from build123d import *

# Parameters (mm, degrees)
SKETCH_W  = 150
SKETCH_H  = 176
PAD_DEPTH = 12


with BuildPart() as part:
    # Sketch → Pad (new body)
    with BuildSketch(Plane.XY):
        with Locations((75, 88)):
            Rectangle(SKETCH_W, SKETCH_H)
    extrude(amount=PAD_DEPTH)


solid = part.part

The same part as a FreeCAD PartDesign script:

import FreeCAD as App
import Part
import Sketcher

V = App.Vector

doc = App.newDocument("Part")
params = doc.addObject("Spreadsheet::Sheet", "Params")
for row, (alias, value) in enumerate([
    ("sketch1_width", "150 mm"),
    ("sketch1_height", "176 mm"),
    ("pad1_length", "12 mm"),
], start=1):
    params.set(f"A{row}", alias)
    params.set(f"B{row}", "=" + value)
    params.setAlias(f"B{row}", alias)

body = doc.addObject("PartDesign::Body", "Body")

# Sketch on XY plane
sketch1 = doc.addObject("Sketcher::SketchObject", "Sketch")
body.addObject(sketch1)
sketch1.AttachmentSupport = (doc.XY_Plane, [""])
sketch1.MapMode = "FlatFace"
sketch1.addGeometry([
    Part.LineSegment(V(0, 176, 0), V(0, 0, 0)),
    Part.LineSegment(V(0, 0, 0), V(150, 0, 0)),
    Part.LineSegment(V(150, 0, 0), V(150, 176, 0)),
    Part.LineSegment(V(150, 176, 0), V(0, 176, 0)),
], False)
sketch1.addConstraint([
    Sketcher.Constraint("Coincident", 0, 2, 1, 1),
    Sketcher.Constraint("Coincident", 1, 2, 2, 1),
    Sketcher.Constraint("Coincident", 2, 2, 3, 1),
    Sketcher.Constraint("Coincident", 3, 2, 0, 1),
    Sketcher.Constraint("Vertical", 0),
    Sketcher.Constraint("Horizontal", 1),
    Sketcher.Constraint("Vertical", 2),
    Sketcher.Constraint("Horizontal", 3),
    Sketcher.Constraint("Coincident", 0, 2, -1, 1),
    Sketcher.Constraint("DistanceX", 1, 1, 1, 2, 150.0),
    Sketcher.Constraint("DistanceY", 0, 2, 0, 1, 176.0),
])
sketch1.setExpression("Constraints[9]", "Params.sketch1_width")
sketch1.setExpression("Constraints[10]", "Params.sketch1_height")
pad1 = doc.addObject("PartDesign::Pad", "Pad")
body.addObject(pad1)
pad1.Profile = sketch1
pad1.setExpression("Length", "Params.pad1_length")

doc.recompute()
